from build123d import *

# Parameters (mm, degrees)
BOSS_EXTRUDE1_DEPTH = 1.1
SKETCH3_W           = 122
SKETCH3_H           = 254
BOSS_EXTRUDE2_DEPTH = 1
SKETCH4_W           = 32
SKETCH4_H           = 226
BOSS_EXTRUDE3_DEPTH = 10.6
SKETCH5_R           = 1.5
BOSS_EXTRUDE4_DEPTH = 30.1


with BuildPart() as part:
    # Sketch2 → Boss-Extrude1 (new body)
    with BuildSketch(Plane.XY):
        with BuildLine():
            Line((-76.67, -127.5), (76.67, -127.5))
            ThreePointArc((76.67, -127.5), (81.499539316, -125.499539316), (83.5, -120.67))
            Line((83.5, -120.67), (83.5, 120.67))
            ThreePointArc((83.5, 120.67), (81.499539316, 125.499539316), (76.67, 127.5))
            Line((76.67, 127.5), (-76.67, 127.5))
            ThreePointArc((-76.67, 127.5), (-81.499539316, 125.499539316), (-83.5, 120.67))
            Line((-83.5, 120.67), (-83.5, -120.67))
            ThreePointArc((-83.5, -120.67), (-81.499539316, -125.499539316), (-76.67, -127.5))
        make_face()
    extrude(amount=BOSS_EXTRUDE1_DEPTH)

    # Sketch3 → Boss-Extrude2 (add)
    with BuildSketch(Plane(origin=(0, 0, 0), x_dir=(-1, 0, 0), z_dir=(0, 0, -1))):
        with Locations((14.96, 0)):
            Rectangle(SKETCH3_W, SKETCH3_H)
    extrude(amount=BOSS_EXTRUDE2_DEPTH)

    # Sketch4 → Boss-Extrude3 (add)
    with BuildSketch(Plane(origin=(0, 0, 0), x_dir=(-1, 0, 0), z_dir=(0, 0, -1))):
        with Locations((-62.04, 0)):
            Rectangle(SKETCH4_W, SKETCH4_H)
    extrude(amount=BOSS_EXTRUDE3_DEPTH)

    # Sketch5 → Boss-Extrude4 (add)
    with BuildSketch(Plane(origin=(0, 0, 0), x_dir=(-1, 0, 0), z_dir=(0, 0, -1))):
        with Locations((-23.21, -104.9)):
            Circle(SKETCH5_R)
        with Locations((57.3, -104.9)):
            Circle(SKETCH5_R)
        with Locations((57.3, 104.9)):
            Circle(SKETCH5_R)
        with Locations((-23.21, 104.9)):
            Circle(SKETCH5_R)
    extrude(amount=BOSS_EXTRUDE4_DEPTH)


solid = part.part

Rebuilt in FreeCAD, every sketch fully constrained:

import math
import FreeCAD as App
import Part
import Sketcher
Q = App.Units.Quantity

doc = App.newDocument("Part")
body = doc.addObject("PartDesign::Body", "Body")

# Sketch on XY plane
sketch1 = body.newObject("Sketcher::SketchObject", "Sketch")
sketch1.AttachmentSupport = (doc.getObject("XY_Plane"), [""])
sketch1.MapMode = "FlatFace"
sketch1.addGeometry([
    Part.LineSegment(App.Vector(-77, -128, 0), App.Vector(77, -128, 0)),  # 0
    Part.ArcOfCircle(Part.Circle(App.Vector(77, -121, 0), App.Vector(0, 0, 1), 7), math.radians(-90), math.radians(0)),  # 1
    Part.LineSegment(App.Vector(84, -121, 0), App.Vector(84, 121, 0)),  # 2
    Part.ArcOfCircle(Part.Circle(App.Vector(77, 121, 0), App.Vector(0, 0, 1), 7), math.radians(0), math.radians(90)),  # 3
    Part.LineSegment(App.Vector(77, 128, 0), App.Vector(-77, 128, 0)),  # 4
    Part.ArcOfCircle(Part.Circle(App.Vector(-77, 121, 0), App.Vector(0, 0, 1), 7), math.radians(90), math.radians(180)),  # 5
    Part.LineSegment(App.Vector(-84, 121, 0), App.Vector(-84, -121, 0)),  # 6
    Part.ArcOfCircle(Part.Circle(App.Vector(-77, -121, 0), App.Vector(0, 0, 1), 7), math.radians(180), math.radians(270)),  # 7
], False)
sketch1.addConstraint([
    Sketcher.Constraint("Tangent", 0, 2, 1, 1),
    Sketcher.Constraint("Tangent", 1, 2, 2, 1),
    Sketcher.Constraint("Tangent", 2, 2, 3, 1),
    Sketcher.Constraint("Tangent", 3, 2, 4, 1),
    Sketcher.Constraint("Tangent", 4, 2, 5, 1),
    Sketcher.Constraint("Tangent", 5, 2, 6, 1),
    Sketcher.Constraint("Tangent", 6, 2, 7, 1),
    Sketcher.Constraint("Tangent", 7, 2, 0, 1),
    Sketcher.Constraint("Horizontal", 0),
    Sketcher.Constraint("Vertical", 2),
    Sketcher.Constraint("Horizontal", 4),
    Sketcher.Constraint("Vertical", 6),
    Sketcher.Constraint("Equal", 1, 3),
    Sketcher.Constraint("Equal", 3, 5),
    Sketcher.Constraint("Equal", 5, 7),
    Sketcher.Constraint("Symmetric", 1, 3, 5, 3, -1, 1),
    Sketcher.Constraint("Radius", 1, Q("6.83 mm")),
    Sketcher.Constraint("DistanceX", 5, 2, 2, 2, Q("167 mm")),
    Sketcher.Constraint("DistanceY", 2, 1, 2, 2, Q("241.34 mm")),
])
pad1 = body.newObject("PartDesign::Pad", "Pad")
pad1.Profile = sketch1
pad1.Length = 1.1

# Sketch on XY plane
sketch2 = body.newObject("Sketcher::SketchObject", "Sketch001")
sketch2.AttachmentSupport = (doc.getObject("XY_Plane"), [""])
sketch2.MapMode = "FlatFace"
sketch2.addGeometry([
    Part.LineSegment(App.Vector(46, 127, 0), App.Vector(46, -127, 0)),
    Part.LineSegment(App.Vector(46, -127, 0), App.Vector(-76, -127, 0)),
    Part.LineSegment(App.Vector(-76, -127, 0), App.Vector(-76, 127, 0)),
    Part.LineSegment(App.Vector(-76, 127, 0), App.Vector(46, 127, 0)),
], False)
sketch2.addConstraint([
    Sketcher.Constraint("Coincident", 0, 2, 1, 1),
    Sketcher.Constraint("Coincident", 1, 2, 2, 1),
    Sketcher.Constraint("Coincident", 2, 2, 3, 1),
    Sketcher.Constraint("Coincident", 3, 2, 0, 1),
    Sketcher.Constraint("Vertical", 0),
    Sketcher.Constraint("Horizontal", 1),
    Sketcher.Constraint("Vertical", 2),
    Sketcher.Constraint("Horizontal", 3),
    Sketcher.Constraint("DistanceX", 1, 2, 1, 1, Q("122 mm")),
    Sketcher.Constraint("DistanceY", 0, 2, 0, 1, Q("254 mm")),
    Sketcher.Constraint("DistanceY", 0, 2, -1, 1, Q("127 mm")),
    Sketcher.Constraint("DistanceX", -1, 1, 0, 2, Q("46.04 mm")),
])
pad2 = body.newObject("PartDesign::Pad", "Pad001")
pad2.Profile = sketch2
pad2.Length = 1
pad2.Reversed = True

# Sketch on XY plane
sketch3 = body.newObject("Sketcher::SketchObject", "Sketch002")
sketch3.AttachmentSupport = (doc.getObject("XY_Plane"), [""])
sketch3.MapMode = "FlatFace"
sketch3.addGeometry([
    Part.LineSegment(App.Vector(78, 113, 0), App.Vector(78, -113, 0)),
    Part.LineSegment(App.Vector(78, -113, 0), App.Vector(46, -113, 0)),
    Part.LineSegment(App.Vector(46, -113, 0), App.Vector(46, 113, 0)),
    Part.LineSegment(App.Vector(46, 113, 0), App.Vector(78, 113, 0)),
], False)
sketch3.addConstraint([
    Sketcher.Constraint("Coincident", 0, 2, 1, 1),
    Sketcher.Constraint("Coincident", 1, 2, 2, 1),
    Sketcher.Constraint("Coincident", 2, 2, 3, 1),
    Sketcher.Constraint("Coincident", 3, 2, 0, 1),
    Sketcher.Constraint("Vertical", 0),
    Sketcher.Constraint("Horizontal", 1),
    Sketcher.Constraint("Vertical", 2),
    Sketcher.Constraint("Horizontal", 3),
    Sketcher.Constraint("DistanceX", 1, 2, 1, 1, Q("32 mm")),
    Sketcher.Constraint("DistanceY", 0, 2, 0, 1, Q("226 mm")),
    Sketcher.Constraint("DistanceY", 0, 2, -1, 1, Q("113 mm")),
    Sketcher.Constraint("DistanceX", -1, 1, 0, 2, Q("78.04 mm")),
])
pad3 = body.newObject("PartDesign::Pad", "Pad002")
pad3.Profile = sketch3
pad3.Length = 10.6
pad3.Reversed = True

# Sketch on XY plane
sketch4 = body.newObject("Sketcher::SketchObject", "Sketch003")
sketch4.AttachmentSupport = (doc.getObject("XY_Plane"), [""])
sketch4.MapMode = "FlatFace"
sketch4.addGeometry([
    Part.Circle(App.Vector(23.2, -104.9, 0), App.Vector(0, 0, 1), 1.5),
    Part.Circle(App.Vector(-57.3, -104.9, 0), App.Vector(0, 0, 1), 1.5),
    Part.Circle(App.Vector(-57.3, 104.9, 0), App.Vector(0, 0, 1), 1.5),
    Part.Circle(App.Vector(23.2, 104.9, 0), App.Vector(0, 0, 1), 1.5),
], False)
sketch4.addConstraint([
    Sketcher.Constraint("Equal", 0, 1),
    Sketcher.Constraint("Equal", 1, 2),
    Sketcher.Constraint("Equal", 2, 3),
    Sketcher.Constraint("Symmetric", 1, 3, 2, 3, -1),
    Sketcher.Constraint("Symmetric", 0, 3, 3, 3, -1),
    Sketcher.Constraint("Horizontal", 0, 3, 1, 3),
    Sketcher.Constraint("Diameter", 0, Q("3 mm")),
    Sketcher.Constraint("DistanceY", 0, 3, -1, 1, Q("104.9 mm")),
    Sketcher.Constraint("DistanceX", 1, 3, -1, 1, Q("57.3 mm")),
    Sketcher.Constraint("DistanceX", -1, 1, 0, 3, Q("23.21 mm")),
])
pad4 = body.newObject("PartDesign::Pad", "Pad003")
pad4.Profile = sketch4
pad4.Length = 30.1
pad4.Reversed = True

doc.recompute()
